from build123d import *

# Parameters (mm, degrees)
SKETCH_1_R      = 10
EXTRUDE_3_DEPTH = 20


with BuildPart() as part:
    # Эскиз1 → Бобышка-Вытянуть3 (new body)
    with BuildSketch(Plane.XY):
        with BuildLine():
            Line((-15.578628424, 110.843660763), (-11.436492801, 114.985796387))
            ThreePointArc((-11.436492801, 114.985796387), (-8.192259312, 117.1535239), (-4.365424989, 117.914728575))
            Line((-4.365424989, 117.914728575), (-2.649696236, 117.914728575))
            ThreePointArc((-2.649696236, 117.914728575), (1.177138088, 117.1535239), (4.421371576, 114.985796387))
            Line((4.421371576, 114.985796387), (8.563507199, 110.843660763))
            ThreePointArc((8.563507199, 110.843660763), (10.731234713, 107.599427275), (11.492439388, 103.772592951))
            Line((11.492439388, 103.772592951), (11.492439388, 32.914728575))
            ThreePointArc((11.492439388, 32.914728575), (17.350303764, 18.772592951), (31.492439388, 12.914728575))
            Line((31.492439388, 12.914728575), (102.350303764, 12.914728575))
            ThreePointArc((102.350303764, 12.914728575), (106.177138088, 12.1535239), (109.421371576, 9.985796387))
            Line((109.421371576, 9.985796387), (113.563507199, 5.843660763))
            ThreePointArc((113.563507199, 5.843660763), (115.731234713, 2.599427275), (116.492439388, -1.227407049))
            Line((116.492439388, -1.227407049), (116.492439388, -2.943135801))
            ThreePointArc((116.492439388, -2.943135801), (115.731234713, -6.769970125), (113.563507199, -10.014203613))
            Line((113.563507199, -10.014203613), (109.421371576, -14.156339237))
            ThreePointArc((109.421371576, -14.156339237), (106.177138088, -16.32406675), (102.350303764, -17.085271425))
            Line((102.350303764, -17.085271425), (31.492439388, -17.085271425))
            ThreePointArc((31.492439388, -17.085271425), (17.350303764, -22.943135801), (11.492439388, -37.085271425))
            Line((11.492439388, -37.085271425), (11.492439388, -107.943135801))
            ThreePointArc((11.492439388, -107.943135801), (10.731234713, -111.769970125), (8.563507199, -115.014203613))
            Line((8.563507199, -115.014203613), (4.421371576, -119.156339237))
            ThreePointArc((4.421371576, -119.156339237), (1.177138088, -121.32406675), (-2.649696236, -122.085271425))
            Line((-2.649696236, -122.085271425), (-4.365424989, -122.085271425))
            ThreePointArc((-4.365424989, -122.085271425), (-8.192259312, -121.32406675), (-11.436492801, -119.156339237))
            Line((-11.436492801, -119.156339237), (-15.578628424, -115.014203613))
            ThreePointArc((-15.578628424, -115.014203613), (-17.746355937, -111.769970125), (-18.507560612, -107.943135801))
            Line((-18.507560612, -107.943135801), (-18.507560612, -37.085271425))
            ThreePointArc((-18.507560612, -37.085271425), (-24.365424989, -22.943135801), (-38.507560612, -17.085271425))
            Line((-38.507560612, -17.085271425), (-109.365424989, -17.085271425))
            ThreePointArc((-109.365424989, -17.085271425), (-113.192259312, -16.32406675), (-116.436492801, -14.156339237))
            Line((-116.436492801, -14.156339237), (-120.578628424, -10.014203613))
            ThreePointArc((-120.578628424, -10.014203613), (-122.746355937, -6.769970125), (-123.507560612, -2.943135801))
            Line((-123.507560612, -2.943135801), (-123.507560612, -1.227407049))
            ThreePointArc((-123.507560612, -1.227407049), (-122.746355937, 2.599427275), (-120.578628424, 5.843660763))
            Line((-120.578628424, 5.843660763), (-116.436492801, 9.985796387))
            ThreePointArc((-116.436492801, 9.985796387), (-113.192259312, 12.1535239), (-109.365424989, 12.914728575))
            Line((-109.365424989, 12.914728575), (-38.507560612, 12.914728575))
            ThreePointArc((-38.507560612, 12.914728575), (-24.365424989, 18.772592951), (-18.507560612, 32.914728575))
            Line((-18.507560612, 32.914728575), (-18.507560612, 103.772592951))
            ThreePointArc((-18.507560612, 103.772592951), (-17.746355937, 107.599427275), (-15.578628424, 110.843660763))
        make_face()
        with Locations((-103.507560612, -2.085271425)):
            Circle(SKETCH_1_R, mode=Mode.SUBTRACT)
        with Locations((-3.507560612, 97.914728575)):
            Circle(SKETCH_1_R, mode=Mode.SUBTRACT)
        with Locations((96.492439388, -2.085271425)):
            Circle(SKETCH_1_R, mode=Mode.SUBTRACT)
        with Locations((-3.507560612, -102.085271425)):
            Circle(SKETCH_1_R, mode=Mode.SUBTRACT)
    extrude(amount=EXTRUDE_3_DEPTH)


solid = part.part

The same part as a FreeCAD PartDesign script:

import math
import FreeCAD as App
import Part
import Sketcher
from FreeCAD import Vector

doc = App.newDocument("Part")
body = doc.addObject("PartDesign::Body", "Body")

# Sketch on XY plane
sketch1 = body.newObject("Sketcher::SketchObject", "Sketch")
sketch1.AttachmentSupport = (doc.getObject("XY_Plane"), [""])
sketch1.MapMode = "FlatFace"
sketch1.addGeometry([
    Part.LineSegment(Vector(-11.4, 115, 0), Vector(-15.6, 110.8, 0)),  # 0
    Part.ArcOfCircle(Part.Circle(Vector(-8.5, 103.8, 0), Vector(0, 0, 1), 10), math.radians(135), math.radians(180)),  # 1
    Part.LineSegment(Vector(-18.5, 103.8, 0), Vector(-18.5, 32.9, 0)),  # 2
    Part.ArcOfCircle(Part.Circle(Vector(-38.5, 32.9, 0), Vector(0, 0, 1), 20), math.radians(-90), math.radians(0)),  # 3
    Part.LineSegment(Vector(-38.5, 12.9, 0), Vector(-109.4, 12.9, 0)),  # 4
    Part.ArcOfCircle(Part.Circle(Vector(-109.4, 2.9, 0), Vector(0, 0, 1), 10), math.radians(90), math.radians(135)),  # 5
    Part.LineSegment(Vector(-116.4, 10, 0), Vector(-120.6, 5.8, 0)),  # 6
    Part.ArcOfCircle(Part.Circle(Vector(-113.5, -1.2, 0), Vector(0, 0, 1), 10), math.radians(135), math.radians(180)),  # 7
    Part.LineSegment(Vector(-123.5, -1.2, 0), Vector(-123.5, -2.9, 0)),  # 8
    Part.ArcOfCircle(Part.Circle(Vector(-113.5, -2.9, 0), Vector(0, 0, 1), 10), math.radians(180), math.radians(225)),  # 9
    Part.LineSegment(Vector(-120.6, -10, 0), Vector(-116.4, -14.2, 0)),  # 10
    Part.ArcOfCircle(Part.Circle(Vector(-109.4, -7.1, 0), Vector(0, 0, 1), 10), math.radians(-135), math.radians(-90)),  # 11
    Part.LineSegment(Vector(-109.4, -17.1, 0), Vector(-38.5, -17.1, 0)),  # 12
    Part.ArcOfCircle(Part.Circle(Vector(-38.5, -37.1, 0), Vector(0, 0, 1), 20), math.radians(0), math.radians(90)),  # 13
    Part.LineSegment(Vector(-18.5, -37.1, 0), Vector(-18.5, -107.9, 0)),  # 14
    Part.ArcOfCircle(Part.Circle(Vector(-8.5, -107.9, 0), Vector(0, 0, 1), 10), math.radians(180), math.radians(225)),  # 15
    Part.LineSegment(Vector(-15.6, -115, 0), Vector(-11.4, -119.2, 0)),  # 16
    Part.ArcOfCircle(Part.Circle(Vector(-4.4, -112.1, 0), Vector(0, 0, 1), 10), math.radians(-135), math.radians(-90)),  # 17
    Part.LineSegment(Vector(-4.4, -122.1, 0), Vector(-2.6, -122.1, 0)),  # 18
    Part.ArcOfCircle(Part.Circle(Vector(-2.6, -112.1, 0), Vector(0, 0, 1), 10), math.radians(-90), math.radians(-45)),  # 19
    Part.LineSegment(Vector(4.4, -119.2, 0), Vector(8.6, -115, 0)),  # 20
    Part.ArcOfCircle(Part.Circle(Vector(1.5, -107.9, 0), Vector(0, 0, 1), 10), math.radians(-45), math.radians(0)),  # 21
    Part.LineSegment(Vector(11.5, -107.9, 0), Vector(11.5, -37.1, 0)),  # 22
    Part.ArcOfCircle(Part.Circle(Vector(31.5, -37.1, 0), Vector(0, 0, 1), 20), math.radians(90), math.radians(180)),  # 23
    Part.LineSegment(Vector(31.5, -17.1, 0), Vector(102.4, -17.1, 0)),  # 24
    Part.ArcOfCircle(Part.Circle(Vector(102.4, -7.1, 0), Vector(0, 0, 1), 10), math.radians(-90), math.radians(-45)),  # 25
    Part.LineSegment(Vector(109.4, -14.2, 0), Vector(113.6, -10, 0)),  # 26
    Part.ArcOfCircle(Part.Circle(Vector(106.5, -2.9, 0), Vector(0, 0, 1), 10), math.radians(-45), math.radians(0)),  # 27
    Part.LineSegment(Vector(116.5, -2.9, 0), Vector(116.5, -1.2, 0)),  # 28
    Part.ArcOfCircle(Part.Circle(Vector(106.5, -1.2, 0), Vector(0, 0, 1), 10), math.radians(0), math.radians(45)),  # 29
    Part.LineSegment(Vector(113.6, 5.8, 0), Vector(109.4, 10, 0)),  # 30
    Part.ArcOfCircle(Part.Circle(Vector(102.4, 2.9, 0), Vector(0, 0, 1), 10), math.radians(45), math.radians(90)),  # 31
    Part.LineSegment(Vector(102.4, 12.9, 0), Vector(31.5, 12.9, 0)),  # 32
    Part.ArcOfCircle(Part.Circle(Vector(31.5, 32.9, 0), Vector(0, 0, 1), 20), math.radians(180), math.radians(270)),  # 33
    Part.LineSegment(Vector(11.5, 32.9, 0), Vector(11.5, 103.8, 0)),  # 34
    Part.ArcOfCircle(Part.Circle(Vector(1.5, 103.8, 0), Vector(0, 0, 1), 10), math.radians(0), math.radians(45)),  # 35
    Part.LineSegment(Vector(8.6, 110.8, 0), Vector(4.4, 115, 0)),  # 36
    Part.ArcOfCircle(Part.Circle(Vector(-2.6, 107.9, 0), Vector(0, 0, 1), 10), math.radians(45), math.radians(90)),  # 37
    Part.LineSegment(Vector(-2.6, 117.9, 0), Vector(-4.4, 117.9, 0)),  # 38
    Part.ArcOfCircle(Part.Circle(Vector(-4.4, 107.9, 0), Vector(0, 0, 1), 10), math.radians(90), math.radians(135)),  # 39
    Part.Circle(Vector(-3.5, -102.1, 0), Vector(0, 0, 1), 10),  # 40
    Part.Circle(Vector(96.5, -2.1, 0), Vector(0, 0, 1), 10),  # 41
    Part.Circle(Vector(-103.5, -2.1, 0), Vector(0, 0, 1), 10),  # 42
    Part.Circle(Vector(-3.5, 97.9, 0), Vector(0, 0, 1), 10),  # 43
], False)
sketch1.addConstraint([
    Sketcher.Constraint("Tangent", 0, 2, 1, 1),
    Sketcher.Constraint("Tangent", 1, 2, 2, 1),
    Sketcher.Constraint("Tangent", 2, 2, 3, 2),
    Sketcher.Constraint("Tangent", 3, 1, 4, 1),
    Sketcher.Constraint("Tangent", 4, 2, 5, 1),
    Sketcher.Constraint("Tangent", 5, 2, 6, 1),
    Sketcher.Constraint("Tangent", 6, 2, 7, 1),
    Sketcher.Constraint("Tangent", 7, 2, 8, 1),
    Sketcher.Constraint("Tangent", 8, 2, 9, 1),
    Sketcher.Constraint("Tangent", 9, 2, 10, 1),
    Sketcher.Constraint("Tangent", 10, 2, 11, 1),
    Sketcher.Constraint("Tangent", 11, 2, 12, 1),
    Sketcher.Constraint("Tangent", 12, 2, 13, 2),
    Sketcher.Constraint("Tangent", 13, 1, 14, 1),
    Sketcher.Constraint("Tangent", 14, 2, 15, 1),
    Sketcher.Constraint("Tangent", 15, 2, 16, 1),
    Sketcher.Constraint("Tangent", 16, 2, 17, 1),
    Sketcher.Constraint("Tangent", 17, 2, 18, 1),
    Sketcher.Constraint("Tangent", 18, 2, 19, 1),
    Sketcher.Constraint("Tangent", 19, 2, 20, 1),
    Sketcher.Constraint("Tangent", 20, 2, 21, 1),
    Sketcher.Constraint("Tangent", 21, 2, 22, 1),
    Sketcher.Constraint("Tangent", 22, 2, 23, 2),
    Sketcher.Constraint("Tangent", 23, 1, 24, 1),
    Sketcher.Constraint("Tangent", 24, 2, 25, 1),
    Sketcher.Constraint("Tangent", 25, 2, 26, 1),
    Sketcher.Constraint("Tangent", 26, 2, 27, 1),
    Sketcher.Constraint("Tangent", 27, 2, 28, 1),
    Sketcher.Constraint("Tangent", 28, 2, 29, 1),
    Sketcher.Constraint("Tangent", 29, 2, 30, 1),
    Sketcher.Constraint("Tangent", 30, 2, 31, 1),
    Sketcher.Constraint("Tangent", 31, 2, 32, 1),
    Sketcher.Constraint("Tangent", 32, 2, 33, 2),
    Sketcher.Constraint("Tangent", 33, 1, 34, 1),
    Sketcher.Constraint("Tangent", 34, 2, 35, 1),
    Sketcher.Constraint("Tangent", 35, 2, 36, 1),
    Sketcher.Constraint("Tangent", 36, 2, 37, 1),
    Sketcher.Constraint("Tangent", 37, 2, 38, 1),
    Sketcher.Constraint("Tangent", 38, 2, 39, 1),
    Sketcher.Constraint("Tangent", 39, 2, 0, 1),
    Sketcher.Constraint("Vertical", 2),
    Sketcher.Constraint("Horizontal", 4),
    Sketcher.Constraint("Vertical", 8),
    Sketcher.Constraint("Horizontal", 12),
    Sketcher.Constraint("Vertical", 14),
    Sketcher.Constraint("Horizontal", 18),
    Sketcher.Constraint("Vertical", 22),
    Sketcher.Constraint("Horizontal", 24),
    Sketcher.Constraint("Vertical", 28),
    Sketcher.Constraint("Horizontal", 32),
    Sketcher.Constraint("Vertical", 34),
    Sketcher.Constraint("Horizontal", 38),
    Sketcher.Constraint("Equal", 1, 5),
    Sketcher.Constraint("Equal", 5, 7),
    Sketcher.Constraint("Equal", 7, 9),
    Sketcher.Constraint("Equal", 9, 11),
    Sketcher.Constraint("Equal", 3, 13),
    Sketcher.Constraint("Equal", 11, 15),
    Sketcher.Constraint("Equal", 15, 17),
    Sketcher.Constraint("Equal", 17, 19),
    Sketcher.Constraint("Equal", 19, 21),
    Sketcher.Constraint("Equal", 13, 23),
    Sketcher.Constraint("Equal", 21, 25),
    Sketcher.Constraint("Equal", 25, 27),
    Sketcher.Constraint("Equal", 27, 29),
    Sketcher.Constraint("Equal", 29, 31),
    Sketcher.Constraint("Equal", 23, 33),
    Sketcher.Constraint("Equal", 31, 35),
    Sketcher.Constraint("Equal", 35, 37),
    Sketcher.Constraint("Equal", 37, 39),
    Sketcher.Constraint("Equal", 39, 40),
    Sketcher.Constraint("Equal", 40, 41),
    Sketcher.Constraint("Equal", 41, 42),
    Sketcher.Constraint("Equal", 42, 43),
    Sketcher.Constraint("Parallel", 0, 6),
    Sketcher.Constraint("Perpendicular", 6, 10),
    Sketcher.Constraint("Parallel", 10, 16),
    Sketcher.Constraint("Perpendicular", 16, 20),
    Sketcher.Constraint("Parallel", 20, 26),
    Sketcher.Constraint("Perpendicular", 26, 30),
    Sketcher.Constraint("Parallel", 30, 36),
    Sketcher.Constraint("Horizontal", 15, 3, 21, 3),
    Sketcher.Constraint("Horizontal", 13, 3, 23, 3),
    Sketcher.Constraint("Horizontal", 9, 3, 27, 3),
    Sketcher.Constraint("Horizontal", 7, 3, 29, 3),
    Sketcher.Constraint("Horizontal", 5, 3, 31, 3),
    Sketcher.Constraint("Horizontal", 1, 3, 35, 3),
    Sketcher.Constraint("Horizontal", 41, 3, 42, 3),
    Sketcher.Constraint("Horizontal", 16, 2, 19, 2),
    Sketcher.Constraint("Vertical", 5, 3, 11, 3),
    Sketcher.Constraint("Vertical", 3, 3, 13, 3),
    Sketcher.Constraint("Vertical", 23, 3, 33, 3),
    Sketcher.Constraint("Vertical", 19, 3, 37, 3),
    Sketcher.Constraint("Vertical", 40, 3, 43, 3),
    Sketcher.Constraint("Equal", 12, 24),
    Sketcher.Constraint("Equal", 32, 2),
    Sketcher.Constraint("Equal", 38, 8),
    Sketcher.Constraint("Equal", 2, 14),
    Sketcher.Constraint("Equal", 0, 6),
    Sketcher.Constraint("Diameter", 40, 20.0),
    Sketcher.Constraint("Radius", 3, 20.0),
    Sketcher.Constraint("DistanceX", 18, 1, 18, 2, 1.715729),
    Sketcher.Constraint("DistanceX", 4, 2, 4, 1, 70.857864),
    Sketcher.Constraint("DistanceX", 1, 3, -1, 1, 8.507561),
    Sketcher.Constraint("DistanceY", -1, 1, 3, 3, 32.914729),
    Sketcher.Constraint("DistanceX", 7, 3, -1, 1, 113.507561),
    Sketcher.Constraint("DistanceX", 40, 3, -1, 1, 3.507561),
    Sketcher.Constraint("DistanceY", 40, 3, -1, 1, 102.085271),
    Sketcher.Constraint("DistanceX", -1, 1, 41, 3, 96.492439),
    Sketcher.Constraint("DistanceY", 41, 3, -1, 1, 2.085271),
    Sketcher.Constraint("DistanceX", 42, 3, -1, 1, 103.507561),
    Sketcher.Constraint("DistanceY", -1, 1, 43, 3, 97.914729),
])
pad1 = body.newObject("PartDesign::Pad", "Pad")
pad1.Profile = sketch1
pad1.Length = 20

doc.recompute()
